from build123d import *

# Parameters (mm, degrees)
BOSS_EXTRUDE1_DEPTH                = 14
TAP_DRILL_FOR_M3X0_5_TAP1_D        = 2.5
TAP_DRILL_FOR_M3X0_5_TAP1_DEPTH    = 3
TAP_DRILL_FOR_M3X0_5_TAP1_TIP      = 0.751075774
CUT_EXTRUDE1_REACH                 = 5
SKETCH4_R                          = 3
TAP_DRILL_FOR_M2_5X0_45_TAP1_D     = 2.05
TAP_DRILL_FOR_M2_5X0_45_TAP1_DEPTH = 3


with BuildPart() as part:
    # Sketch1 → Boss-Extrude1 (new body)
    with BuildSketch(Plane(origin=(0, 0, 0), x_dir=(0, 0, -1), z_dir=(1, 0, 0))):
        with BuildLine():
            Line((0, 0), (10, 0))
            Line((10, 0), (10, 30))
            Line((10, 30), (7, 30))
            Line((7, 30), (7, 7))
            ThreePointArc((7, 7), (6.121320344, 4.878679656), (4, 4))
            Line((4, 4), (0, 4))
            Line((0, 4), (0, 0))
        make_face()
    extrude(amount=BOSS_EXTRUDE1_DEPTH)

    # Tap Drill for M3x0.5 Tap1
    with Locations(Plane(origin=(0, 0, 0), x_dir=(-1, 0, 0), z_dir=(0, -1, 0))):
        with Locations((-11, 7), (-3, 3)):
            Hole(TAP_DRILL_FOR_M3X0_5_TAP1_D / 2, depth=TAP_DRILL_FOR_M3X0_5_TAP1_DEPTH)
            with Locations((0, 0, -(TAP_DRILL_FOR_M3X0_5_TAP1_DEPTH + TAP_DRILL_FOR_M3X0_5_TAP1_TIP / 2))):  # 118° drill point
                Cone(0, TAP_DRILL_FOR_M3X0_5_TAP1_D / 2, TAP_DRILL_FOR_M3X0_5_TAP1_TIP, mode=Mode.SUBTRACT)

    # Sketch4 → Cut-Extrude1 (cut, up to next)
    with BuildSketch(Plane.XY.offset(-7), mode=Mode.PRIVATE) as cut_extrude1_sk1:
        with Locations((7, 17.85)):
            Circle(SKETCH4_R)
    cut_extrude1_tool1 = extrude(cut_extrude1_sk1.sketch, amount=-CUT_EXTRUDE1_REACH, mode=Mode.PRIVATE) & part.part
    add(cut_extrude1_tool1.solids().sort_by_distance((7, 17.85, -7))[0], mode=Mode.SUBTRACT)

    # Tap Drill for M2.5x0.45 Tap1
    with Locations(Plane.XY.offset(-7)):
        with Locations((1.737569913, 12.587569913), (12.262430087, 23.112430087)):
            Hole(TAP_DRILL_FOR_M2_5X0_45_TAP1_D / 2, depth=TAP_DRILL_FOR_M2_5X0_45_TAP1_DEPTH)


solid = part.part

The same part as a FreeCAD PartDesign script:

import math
import FreeCAD as App
import Part
import Sketcher

V = App.Vector
Q = App.Units.Quantity

doc = App.newDocument("Part")
body = doc.addObject("PartDesign::Body", "Body")

sketch1 = body.newObject("Sketcher::SketchObject", "Sketch")
sketch1.AttachmentSupport = (doc.getObject("YZ_Plane"), [""])
sketch1.MapMode = "FlatFace"
sketch1.addGeometry([
    Part.LineSegment(V(0, 0, 0), V(0, -10, 0)),
    Part.LineSegment(V(0, -10, 0), V(30, -10, 0)),
    Part.LineSegment(V(30, -10, 0), V(30, -7, 0)),
    Part.LineSegment(V(30, -7, 0), V(7, -7, 0)),
    Part.ArcOfCircle(Part.Circle(V(7, -4, 0), V(0, 0, 1), 3), math.radians(180), math.radians(270)),
    Part.LineSegment(V(4, -4, 0), V(4, 0, 0)),
    Part.LineSegment(V(4, 0, 0), V(0, 0, 0)),
], False)
sketch1.addConstraint([
    Sketcher.Constraint("Coincident", 0, 2, 1, 1),
    Sketcher.Constraint("Coincident", 1, 2, 2, 1),
    Sketcher.Constraint("Coincident", 2, 2, 3, 1),
    Sketcher.Constraint("Tangent", 3, 2, 4, 2),
    Sketcher.Constraint("Tangent", 4, 1, 5, 1),
    Sketcher.Constraint("Coincident", 5, 2, 6, 1),
    Sketcher.Constraint("Coincident", 6, 2, 0, 1),
    Sketcher.Constraint("Vertical", 0),
    Sketcher.Constraint("Horizontal", 1),
    Sketcher.Constraint("Vertical", 2),
    Sketcher.Constraint("Horizontal", 3),
    Sketcher.Constraint("Vertical", 5),
    Sketcher.Constraint("Horizontal", 6),
    Sketcher.Constraint("Coincident", 6, 2, -1, 1),
    Sketcher.Constraint("Equal", 6, 5),
    Sketcher.Constraint("Radius", 4, Q("3 mm")),
    Sketcher.Constraint("DistanceX", 1, 1, 1, 2, Q("30 mm")),
    Sketcher.Constraint("DistanceX", 3, 2, 3, 1, Q("23 mm")),
    Sketcher.Constraint("DistanceY", 0, 2, 0, 1, Q("10 mm")),
])
pad1 = body.newObject("PartDesign::Pad", "Pad")
pad1.Profile = sketch1
pad1.Length = 14

sketch2 = body.newObject("Sketcher::SketchObject", "Sketch001")
sketch2.AttachmentSupport = (doc.getObject("XZ_Plane"), [""])
sketch2.MapMode = "FlatFace"
sketch2.addGeometry([
    Part.Circle(V(11, -7, 0), V(0, 0, 1), 1.2),
    Part.Circle(V(3, -3, 0), V(0, 0, 1), 1.2),
], False)
sketch2.addConstraint([
    Sketcher.Constraint("Equal", 0, 1),
    Sketcher.Constraint("Diameter", 0, Q("2.5 mm")),
    Sketcher.Constraint("DistanceX", -1, 1, 0, 3, Q("11 mm")),
    Sketcher.Constraint("DistanceY", 0, 3, -1, 1, Q("7 mm")),
    Sketcher.Constraint("DistanceX", -1, 1, 1, 3, Q("3 mm")),
    Sketcher.Constraint("DistanceY", 1, 3, -1, 1, Q("3 mm")),
])
doc.recompute()
hole = body.newObject("PartDesign::Hole", "Hole")
hole.Profile = sketch2
hole.ThreadType = "None"
hole.Diameter = 2.5
hole.DepthType = "Dimension"
hole.Depth = 3
hole.DrillPoint = "Angled"
hole.DrillPointAngle = 118

sketch3 = body.newObject("Sketcher::SketchObject", "Sketch002")
sketch3.AttachmentSupport = (doc.getObject("XY_Plane"), [""])
sketch3.MapMode = "FlatFace"
sketch3.AttachmentOffset = App.Placement(V(0, 0, -7), App.Rotation())
sketch3.addGeometry(Part.Circle(V(7, 17.9, 0), V(0, 0, 1), 3), False)
sketch3.addConstraint([
    Sketcher.Constraint("Diameter", 0, Q("6 mm")),
    Sketcher.Constraint("DistanceX", -1, 1, 0, 3, Q("7 mm")),
    Sketcher.Constraint("DistanceY", -1, 1, 0, 3, Q("17.85 mm")),
])
pocket1 = body.newObject("PartDesign::Pocket", "Pocket")
pocket1.Profile = sketch3
pocket1.Type = "UpToFirst"

sketch4 = body.newObject("Sketcher::SketchObject", "Sketch003")
sketch4.AttachmentSupport = (doc.getObject("XY_Plane"), [""])
sketch4.MapMode = "FlatFace"
sketch4.AttachmentOffset = App.Placement(V(0, 0, -7), App.Rotation())
sketch4.addGeometry([
    Part.Circle(V(1.7, 12.6, 0), V(0, 0, 1), 1),
    Part.Circle(V(12.3, 23.1, 0), V(0, 0, 1), 1),
], False)
sketch4.addConstraint([
    Sketcher.Constraint("Equal", 0, 1),
    Sketcher.Constraint("Diameter", 0, Q("2.05 mm")),
    Sketcher.Constraint("DistanceX", -1, 1, 0, 3, Q("1.73757 mm")),
    Sketcher.Constraint("DistanceY", -1, 1, 0, 3, Q("12.58757 mm")),
    Sketcher.Constraint("DistanceX", -1, 1, 1, 3, Q("12.26243 mm")),
    Sketcher.Constraint("DistanceY", -1, 1, 1, 3, Q("23.11243 mm")),
])
doc.recompute()
hole2 = body.newObject("PartDesign::Hole", "Hole001")
hole2.Profile = sketch4
hole2.ThreadType = "None"
hole2.Diameter = 2.05
hole2.DepthType = "Dimension"
hole2.Depth = 3
hole2.DrillPoint = "Flat"

doc.recompute()
